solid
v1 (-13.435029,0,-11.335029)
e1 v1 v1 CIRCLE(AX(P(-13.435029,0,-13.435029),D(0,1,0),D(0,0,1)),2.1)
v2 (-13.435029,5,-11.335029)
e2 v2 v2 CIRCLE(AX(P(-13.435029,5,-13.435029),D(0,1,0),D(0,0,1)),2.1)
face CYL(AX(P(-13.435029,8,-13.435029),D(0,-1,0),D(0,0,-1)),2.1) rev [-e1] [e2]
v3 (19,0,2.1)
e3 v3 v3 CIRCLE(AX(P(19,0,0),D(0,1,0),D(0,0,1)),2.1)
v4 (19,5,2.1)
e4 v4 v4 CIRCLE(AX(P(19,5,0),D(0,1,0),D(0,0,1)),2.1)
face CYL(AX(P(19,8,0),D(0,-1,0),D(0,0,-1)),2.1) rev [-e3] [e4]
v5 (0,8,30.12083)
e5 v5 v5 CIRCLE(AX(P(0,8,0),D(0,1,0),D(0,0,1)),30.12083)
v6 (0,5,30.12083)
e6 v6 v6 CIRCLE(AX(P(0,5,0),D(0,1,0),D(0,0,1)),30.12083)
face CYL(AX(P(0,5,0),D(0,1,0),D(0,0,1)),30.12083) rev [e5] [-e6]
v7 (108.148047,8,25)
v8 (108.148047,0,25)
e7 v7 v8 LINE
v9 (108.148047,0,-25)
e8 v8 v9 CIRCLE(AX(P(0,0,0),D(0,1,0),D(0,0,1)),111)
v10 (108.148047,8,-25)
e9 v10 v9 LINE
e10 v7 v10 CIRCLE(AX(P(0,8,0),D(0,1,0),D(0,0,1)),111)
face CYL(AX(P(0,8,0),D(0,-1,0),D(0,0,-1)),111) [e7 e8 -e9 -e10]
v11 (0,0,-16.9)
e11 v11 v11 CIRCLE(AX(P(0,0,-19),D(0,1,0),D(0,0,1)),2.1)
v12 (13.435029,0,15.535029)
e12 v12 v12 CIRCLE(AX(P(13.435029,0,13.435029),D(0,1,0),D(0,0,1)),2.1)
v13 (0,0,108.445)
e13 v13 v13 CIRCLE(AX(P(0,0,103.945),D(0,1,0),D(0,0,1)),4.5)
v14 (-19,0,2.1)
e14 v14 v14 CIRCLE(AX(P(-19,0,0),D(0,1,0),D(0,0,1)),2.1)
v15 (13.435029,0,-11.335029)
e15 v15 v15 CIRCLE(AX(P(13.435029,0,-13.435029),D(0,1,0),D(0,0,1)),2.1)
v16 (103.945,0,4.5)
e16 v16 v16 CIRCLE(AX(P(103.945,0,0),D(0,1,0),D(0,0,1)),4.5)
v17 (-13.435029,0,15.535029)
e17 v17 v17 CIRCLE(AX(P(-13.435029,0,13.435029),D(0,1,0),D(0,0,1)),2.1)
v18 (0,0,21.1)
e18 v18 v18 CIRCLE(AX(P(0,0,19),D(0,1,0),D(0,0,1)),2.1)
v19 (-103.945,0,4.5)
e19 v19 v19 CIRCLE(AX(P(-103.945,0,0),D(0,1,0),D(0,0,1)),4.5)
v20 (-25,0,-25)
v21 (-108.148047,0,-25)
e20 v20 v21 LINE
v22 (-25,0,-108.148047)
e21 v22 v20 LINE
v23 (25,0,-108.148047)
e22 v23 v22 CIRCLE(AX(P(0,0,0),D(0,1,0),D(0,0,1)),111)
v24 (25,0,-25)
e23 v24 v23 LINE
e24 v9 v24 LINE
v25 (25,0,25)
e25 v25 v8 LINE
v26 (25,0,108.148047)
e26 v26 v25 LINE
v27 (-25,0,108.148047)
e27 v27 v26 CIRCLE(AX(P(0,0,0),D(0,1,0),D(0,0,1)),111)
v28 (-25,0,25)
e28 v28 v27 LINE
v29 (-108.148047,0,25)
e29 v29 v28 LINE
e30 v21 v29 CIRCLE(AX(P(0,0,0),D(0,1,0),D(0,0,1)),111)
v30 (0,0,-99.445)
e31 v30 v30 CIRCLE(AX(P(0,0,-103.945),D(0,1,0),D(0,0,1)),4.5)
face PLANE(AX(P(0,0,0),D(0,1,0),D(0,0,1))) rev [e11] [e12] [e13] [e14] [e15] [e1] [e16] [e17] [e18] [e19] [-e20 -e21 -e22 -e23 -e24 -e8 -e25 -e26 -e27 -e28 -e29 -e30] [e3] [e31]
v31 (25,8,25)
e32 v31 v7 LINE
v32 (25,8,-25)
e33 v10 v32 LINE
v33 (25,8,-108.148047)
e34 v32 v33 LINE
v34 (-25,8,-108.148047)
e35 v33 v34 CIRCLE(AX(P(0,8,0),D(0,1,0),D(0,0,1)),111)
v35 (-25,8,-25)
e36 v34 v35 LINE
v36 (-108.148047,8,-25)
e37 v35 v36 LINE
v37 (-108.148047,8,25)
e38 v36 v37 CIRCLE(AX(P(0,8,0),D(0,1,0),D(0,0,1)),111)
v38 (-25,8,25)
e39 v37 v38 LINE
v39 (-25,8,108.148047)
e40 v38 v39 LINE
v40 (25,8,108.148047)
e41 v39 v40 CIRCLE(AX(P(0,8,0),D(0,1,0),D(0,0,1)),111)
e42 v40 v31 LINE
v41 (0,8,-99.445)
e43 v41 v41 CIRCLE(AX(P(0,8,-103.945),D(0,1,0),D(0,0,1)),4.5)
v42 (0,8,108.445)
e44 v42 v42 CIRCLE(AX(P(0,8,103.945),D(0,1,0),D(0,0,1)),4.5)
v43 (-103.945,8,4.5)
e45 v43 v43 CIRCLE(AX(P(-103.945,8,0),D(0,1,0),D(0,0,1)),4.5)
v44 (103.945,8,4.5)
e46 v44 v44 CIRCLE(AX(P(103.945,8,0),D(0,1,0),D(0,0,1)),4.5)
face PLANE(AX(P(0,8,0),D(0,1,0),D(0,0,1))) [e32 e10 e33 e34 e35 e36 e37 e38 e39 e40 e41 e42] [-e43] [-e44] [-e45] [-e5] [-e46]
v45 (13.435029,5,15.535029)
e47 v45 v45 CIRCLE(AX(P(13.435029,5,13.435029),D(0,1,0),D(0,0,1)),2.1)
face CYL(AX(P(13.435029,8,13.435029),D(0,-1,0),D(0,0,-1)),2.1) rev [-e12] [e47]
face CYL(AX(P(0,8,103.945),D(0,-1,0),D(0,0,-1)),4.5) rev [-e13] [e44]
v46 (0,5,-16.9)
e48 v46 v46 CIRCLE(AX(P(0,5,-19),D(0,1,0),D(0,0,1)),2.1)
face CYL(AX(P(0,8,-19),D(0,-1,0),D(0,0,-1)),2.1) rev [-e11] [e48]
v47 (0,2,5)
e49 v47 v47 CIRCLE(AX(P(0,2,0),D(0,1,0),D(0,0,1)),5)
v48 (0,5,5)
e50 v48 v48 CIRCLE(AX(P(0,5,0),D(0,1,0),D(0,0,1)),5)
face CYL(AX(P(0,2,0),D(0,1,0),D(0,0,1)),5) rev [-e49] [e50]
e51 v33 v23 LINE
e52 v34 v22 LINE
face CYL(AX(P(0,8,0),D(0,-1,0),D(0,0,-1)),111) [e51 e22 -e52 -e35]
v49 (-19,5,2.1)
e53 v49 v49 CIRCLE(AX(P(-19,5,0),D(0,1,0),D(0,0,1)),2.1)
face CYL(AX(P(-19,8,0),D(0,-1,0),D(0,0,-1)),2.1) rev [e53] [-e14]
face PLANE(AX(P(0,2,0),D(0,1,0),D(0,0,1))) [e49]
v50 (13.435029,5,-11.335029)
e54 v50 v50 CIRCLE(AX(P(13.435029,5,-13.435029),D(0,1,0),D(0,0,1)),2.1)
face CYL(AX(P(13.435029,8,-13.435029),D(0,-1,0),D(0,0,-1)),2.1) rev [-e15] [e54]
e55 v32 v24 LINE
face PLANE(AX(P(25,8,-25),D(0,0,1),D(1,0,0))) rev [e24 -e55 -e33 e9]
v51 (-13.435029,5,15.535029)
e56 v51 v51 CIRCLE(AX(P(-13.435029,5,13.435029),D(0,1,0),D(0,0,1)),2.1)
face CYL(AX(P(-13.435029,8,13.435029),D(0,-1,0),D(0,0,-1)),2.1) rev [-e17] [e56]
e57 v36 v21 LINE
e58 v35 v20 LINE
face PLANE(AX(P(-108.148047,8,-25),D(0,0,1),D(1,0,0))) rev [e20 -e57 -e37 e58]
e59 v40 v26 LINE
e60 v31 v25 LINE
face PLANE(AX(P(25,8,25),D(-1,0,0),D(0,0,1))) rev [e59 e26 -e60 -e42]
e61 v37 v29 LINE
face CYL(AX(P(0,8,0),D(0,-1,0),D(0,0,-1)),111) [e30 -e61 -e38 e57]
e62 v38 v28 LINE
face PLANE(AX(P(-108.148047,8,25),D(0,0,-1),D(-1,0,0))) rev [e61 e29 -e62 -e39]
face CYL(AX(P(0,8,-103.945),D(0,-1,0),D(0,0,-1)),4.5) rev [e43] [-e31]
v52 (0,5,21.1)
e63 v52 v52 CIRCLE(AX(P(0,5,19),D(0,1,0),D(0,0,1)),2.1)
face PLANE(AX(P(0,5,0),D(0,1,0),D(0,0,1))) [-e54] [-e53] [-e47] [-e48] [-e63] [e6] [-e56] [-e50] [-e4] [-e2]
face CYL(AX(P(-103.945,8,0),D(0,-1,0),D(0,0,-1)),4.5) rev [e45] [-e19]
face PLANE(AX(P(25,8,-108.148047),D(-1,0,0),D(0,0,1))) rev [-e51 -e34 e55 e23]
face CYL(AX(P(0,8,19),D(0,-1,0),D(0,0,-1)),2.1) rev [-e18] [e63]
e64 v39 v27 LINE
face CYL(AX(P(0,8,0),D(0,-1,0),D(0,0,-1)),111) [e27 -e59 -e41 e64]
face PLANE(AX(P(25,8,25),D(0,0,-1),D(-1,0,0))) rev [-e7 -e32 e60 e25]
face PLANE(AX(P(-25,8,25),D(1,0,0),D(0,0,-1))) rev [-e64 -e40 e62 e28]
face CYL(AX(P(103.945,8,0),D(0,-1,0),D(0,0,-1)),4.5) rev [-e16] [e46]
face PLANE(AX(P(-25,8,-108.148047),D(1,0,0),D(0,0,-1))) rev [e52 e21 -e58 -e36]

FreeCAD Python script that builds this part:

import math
import FreeCAD as App
import Part
import Sketcher

doc = App.newDocument("Part")
body = doc.addObject("PartDesign::Body", "Body")

sketch1 = body.newObject("Sketcher::SketchObject", "Sketch")
sketch1.AttachmentSupport = (doc.getObject("XZ_Plane"), [""])
sketch1.MapMode = "FlatFace"
sketch1.addGeometry([
    Part.LineSegment(App.Vector(-25, -108.148047, 0), App.Vector(-25, -25, 0)),
    Part.LineSegment(App.Vector(-25, -25, 0), App.Vector(-108.148047, -25, 0)),
    Part.ArcOfCircle(Part.Circle(App.Vector(0, 0, 0), App.Vector(0, 0, 1), 111), math.radians(166.983877), math.radians(193.016123)),
    Part.LineSegment(App.Vector(-108.148047, 25, 0), App.Vector(-25, 25, 0)),
    Part.LineSegment(App.Vector(-25, 25, 0), App.Vector(-25, 108.148047, 0)),
    Part.ArcOfCircle(Part.Circle(App.Vector(0, 0, 0), App.Vector(0, 0, 1), 111), math.radians(76.983877), math.radians(103.016123)),
    Part.LineSegment(App.Vector(25, 108.148047, 0), App.Vector(25, 25, 0)),
    Part.LineSegment(App.Vector(25, 25, 0), App.Vector(108.148047, 25, 0)),
    Part.ArcOfCircle(Part.Circle(App.Vector(0, 0, 0), App.Vector(0, 0, 1), 111), math.radians(-13.016123), math.radians(13.016123)),
    Part.LineSegment(App.Vector(108.148047, -25, 0), App.Vector(25, -25, 0)),
    Part.LineSegment(App.Vector(25, -25, 0), App.Vector(25, -108.148047, 0)),
    Part.ArcOfCircle(Part.Circle(App.Vector(0, 0, 0), App.Vector(0, 0, 1), 111), math.radians(-103.016123), math.radians(-76.983877)),
    Part.Circle(App.Vector(-13.435029, 13.435029, 0), App.Vector(0, 0, 1), 2.1),
    Part.Circle(App.Vector(0, 103.945, 0), App.Vector(0, 0, 1), 4.5),
    Part.Circle(App.Vector(0, 19, 0), App.Vector(0, 0, 1), 2.1),
    Part.Circle(App.Vector(13.435029, 13.435029, 0), App.Vector(0, 0, 1), 2.1),
    Part.Circle(App.Vector(-103.945, 0, 0), App.Vector(0, 0, 1), 4.5),
    Part.Circle(App.Vector(-19, 0, 0), App.Vector(0, 0, 1), 2.1),
    Part.Circle(App.Vector(-13.435029, -13.435029, 0), App.Vector(0, 0, 1), 2.1),
    Part.Circle(App.Vector(13.435029, -13.435029, 0), App.Vector(0, 0, 1), 2.1),
    Part.Circle(App.Vector(19, 0, 0), App.Vector(0, 0, 1), 2.1),
    Part.Circle(App.Vector(0, -19, 0), App.Vector(0, 0, 1), 2.1),
    Part.Circle(App.Vector(103.945, 0, 0), App.Vector(0, 0, 1), 4.5),
    Part.Circle(App.Vector(0, -103.945, 0), App.Vector(0, 0, 1), 4.5),
], False)
sketch1.addConstraint([
    Sketcher.Constraint("Coincident", 0, 2, 1, 1),
    Sketcher.Constraint("Coincident", 1, 2, 2, 2),
    Sketcher.Constraint("Coincident", 2, 1, 3, 1),
    Sketcher.Constraint("Coincident", 3, 2, 4, 1),
    Sketcher.Constraint("Coincident", 4, 2, 5, 2),
    Sketcher.Constraint("Coincident", 5, 1, 6, 1),
    Sketcher.Constraint("Coincident", 6, 2, 7, 1),
    Sketcher.Constraint("Coincident", 7, 2, 8, 2),
    Sketcher.Constraint("Coincident", 8, 1, 9, 1),
    Sketcher.Constraint("Coincident", 9, 2, 10, 1),
    Sketcher.Constraint("Coincident", 10, 2, 11, 2),
    Sketcher.Constraint("Coincident", 11, 1, 0, 1),
    Sketcher.Constraint("Vertical", 0),
    Sketcher.Constraint("Horizontal", 1),
    Sketcher.Constraint("Horizontal", 3),
    Sketcher.Constraint("Vertical", 4),
    Sketcher.Constraint("Vertical", 6),
    Sketcher.Constraint("Horizontal", 7),
    Sketcher.Constraint("Horizontal", 9),
    Sketcher.Constraint("Vertical", 10),
    Sketcher.Constraint("Coincident", 2, 3, -1, 1),
    Sketcher.Constraint("Coincident", 5, 3, -1, 1),
    Sketcher.Constraint("Coincident", 8, 3, -1, 1),
    Sketcher.Constraint("Coincident", 11, 3, -1, 1),
    Sketcher.Constraint("Equal", 2, 5),
    Sketcher.Constraint("Equal", 5, 8),
    Sketcher.Constraint("Equal", 8, 11),
    Sketcher.Constraint("Equal", 12, 14),
    Sketcher.Constraint("Equal", 14, 15),
    Sketcher.Constraint("Equal", 13, 16),
    Sketcher.Constraint("Equal", 15, 17),
    Sketcher.Constraint("Equal", 17, 18),
    Sketcher.Constraint("Equal", 18, 19),
    Sketcher.Constraint("Equal", 19, 20),
    Sketcher.Constraint("Equal", 20, 21),
    Sketcher.Constraint("Equal", 16, 22),
    Sketcher.Constraint("Equal", 22, 23),
    Sketcher.Constraint("Symmetric", 15, 3, 18, 3, -1, 1),
    Sketcher.Constraint("Symmetric", 12, 3, 19, 3, -1, 1),
    Sketcher.Constraint("Symmetric", 17, 3, 20, 3, -1, 1),
    Sketcher.Constraint("Symmetric", 14, 3, 21, 3, -1, 1),
    Sketcher.Constraint("Symmetric", 16, 3, 22, 3, -1, 1),
    Sketcher.Constraint("Symmetric", 13, 3, 23, 3, -1, 1),
    Sketcher.Constraint("Symmetric", 0, 2, 6, 2, -1, 1),
    Sketcher.Constraint("Symmetric", 3, 2, 9, 2, -1, 1),
    Sketcher.Constraint("Symmetric", 12, 3, 15, 3, -2),
    Sketcher.Constraint("Symmetric", 3, 2, 6, 2, -2),
    Sketcher.Constraint("PointOnObject", 13, 3, -2),
    Sketcher.Constraint("PointOnObject", 14, 3, -2),
    Sketcher.Constraint("PointOnObject", 16, 3, -1),
    Sketcher.Constraint("PointOnObject", 17, 3, -1),
    Sketcher.Constraint("Equal", 9, 0),
    Sketcher.Constraint("Diameter", 13, 9.0),
    Sketcher.Constraint("Radius", 2, 111.0),
    Sketcher.Constraint("Diameter", 12, 4.2),
    Sketcher.Constraint("DistanceY", -1, 1, 14, 3, 19.0),
    Sketcher.Constraint("DistanceX", 17, 3, -1, 1, 19.0),
    Sketcher.Constraint("DistanceX", 0, 2, -1, 1, 25.0),
    Sketcher.Constraint("DistanceY", -1, 1, 13, 3, 103.945),
    Sketcher.Constraint("DistanceX", 16, 3, -1, 1, 103.945),
    Sketcher.Constraint("DistanceX", 12, 3, -1, 1, 13.435029),
    Sketcher.Constraint("DistanceY", -1, 1, 12, 3, 13.435029),
])
pad1 = body.newObject("PartDesign::Pad", "Pad")
pad1.Profile = sketch1
pad1.Length = 8
pad1.Reversed = True

sketch2 = body.newObject("Sketcher::SketchObject", "Sketch001")
sketch2.AttachmentSupport = (doc.getObject("XZ_Plane"), [""])
sketch2.MapMode = "FlatFace"
sketch2.AttachmentOffset = App.Placement(App.Vector(0, 0, -8), App.Rotation())
sketch2.addGeometry(Part.Circle(App.Vector(0, 0, 0), App.Vector(0, 0, 1), 30.12083), False)
sketch2.addConstraint([
    Sketcher.Constraint("Coincident", 0, 3, -1, 1),
    Sketcher.Constraint("Diameter", 0, 60.241661),
])
pocket1 = body.newObject("PartDesign::Pocket", "Pocket")
pocket1.Profile = sketch2
pocket1.Length = 3
pocket1.Reversed = True

sketch3 = body.newObject("Sketcher::SketchObject", "Sketch002")
sketch3.AttachmentSupport = (doc.getObject("XZ_Plane"), [""])
sketch3.MapMode = "FlatFace"
sketch3.AttachmentOffset = App.Placement(App.Vector(0, 0, -5), App.Rotation())
sketch3.addGeometry(Part.Circle(App.Vector(0, 0, 0), App.Vector(0, 0, 1), 5), False)
sketch3.addConstraint([
    Sketcher.Constraint("Coincident", 0, 3, -1, 1),
    Sketcher.Constraint("Diameter", 0, 10.0),
])
pocket2 = body.newObject("PartDesign::Pocket", "Pocket001")
pocket2.Profile = sketch3
pocket2.Length = 3
pocket2.Reversed = True

doc.recompute()
